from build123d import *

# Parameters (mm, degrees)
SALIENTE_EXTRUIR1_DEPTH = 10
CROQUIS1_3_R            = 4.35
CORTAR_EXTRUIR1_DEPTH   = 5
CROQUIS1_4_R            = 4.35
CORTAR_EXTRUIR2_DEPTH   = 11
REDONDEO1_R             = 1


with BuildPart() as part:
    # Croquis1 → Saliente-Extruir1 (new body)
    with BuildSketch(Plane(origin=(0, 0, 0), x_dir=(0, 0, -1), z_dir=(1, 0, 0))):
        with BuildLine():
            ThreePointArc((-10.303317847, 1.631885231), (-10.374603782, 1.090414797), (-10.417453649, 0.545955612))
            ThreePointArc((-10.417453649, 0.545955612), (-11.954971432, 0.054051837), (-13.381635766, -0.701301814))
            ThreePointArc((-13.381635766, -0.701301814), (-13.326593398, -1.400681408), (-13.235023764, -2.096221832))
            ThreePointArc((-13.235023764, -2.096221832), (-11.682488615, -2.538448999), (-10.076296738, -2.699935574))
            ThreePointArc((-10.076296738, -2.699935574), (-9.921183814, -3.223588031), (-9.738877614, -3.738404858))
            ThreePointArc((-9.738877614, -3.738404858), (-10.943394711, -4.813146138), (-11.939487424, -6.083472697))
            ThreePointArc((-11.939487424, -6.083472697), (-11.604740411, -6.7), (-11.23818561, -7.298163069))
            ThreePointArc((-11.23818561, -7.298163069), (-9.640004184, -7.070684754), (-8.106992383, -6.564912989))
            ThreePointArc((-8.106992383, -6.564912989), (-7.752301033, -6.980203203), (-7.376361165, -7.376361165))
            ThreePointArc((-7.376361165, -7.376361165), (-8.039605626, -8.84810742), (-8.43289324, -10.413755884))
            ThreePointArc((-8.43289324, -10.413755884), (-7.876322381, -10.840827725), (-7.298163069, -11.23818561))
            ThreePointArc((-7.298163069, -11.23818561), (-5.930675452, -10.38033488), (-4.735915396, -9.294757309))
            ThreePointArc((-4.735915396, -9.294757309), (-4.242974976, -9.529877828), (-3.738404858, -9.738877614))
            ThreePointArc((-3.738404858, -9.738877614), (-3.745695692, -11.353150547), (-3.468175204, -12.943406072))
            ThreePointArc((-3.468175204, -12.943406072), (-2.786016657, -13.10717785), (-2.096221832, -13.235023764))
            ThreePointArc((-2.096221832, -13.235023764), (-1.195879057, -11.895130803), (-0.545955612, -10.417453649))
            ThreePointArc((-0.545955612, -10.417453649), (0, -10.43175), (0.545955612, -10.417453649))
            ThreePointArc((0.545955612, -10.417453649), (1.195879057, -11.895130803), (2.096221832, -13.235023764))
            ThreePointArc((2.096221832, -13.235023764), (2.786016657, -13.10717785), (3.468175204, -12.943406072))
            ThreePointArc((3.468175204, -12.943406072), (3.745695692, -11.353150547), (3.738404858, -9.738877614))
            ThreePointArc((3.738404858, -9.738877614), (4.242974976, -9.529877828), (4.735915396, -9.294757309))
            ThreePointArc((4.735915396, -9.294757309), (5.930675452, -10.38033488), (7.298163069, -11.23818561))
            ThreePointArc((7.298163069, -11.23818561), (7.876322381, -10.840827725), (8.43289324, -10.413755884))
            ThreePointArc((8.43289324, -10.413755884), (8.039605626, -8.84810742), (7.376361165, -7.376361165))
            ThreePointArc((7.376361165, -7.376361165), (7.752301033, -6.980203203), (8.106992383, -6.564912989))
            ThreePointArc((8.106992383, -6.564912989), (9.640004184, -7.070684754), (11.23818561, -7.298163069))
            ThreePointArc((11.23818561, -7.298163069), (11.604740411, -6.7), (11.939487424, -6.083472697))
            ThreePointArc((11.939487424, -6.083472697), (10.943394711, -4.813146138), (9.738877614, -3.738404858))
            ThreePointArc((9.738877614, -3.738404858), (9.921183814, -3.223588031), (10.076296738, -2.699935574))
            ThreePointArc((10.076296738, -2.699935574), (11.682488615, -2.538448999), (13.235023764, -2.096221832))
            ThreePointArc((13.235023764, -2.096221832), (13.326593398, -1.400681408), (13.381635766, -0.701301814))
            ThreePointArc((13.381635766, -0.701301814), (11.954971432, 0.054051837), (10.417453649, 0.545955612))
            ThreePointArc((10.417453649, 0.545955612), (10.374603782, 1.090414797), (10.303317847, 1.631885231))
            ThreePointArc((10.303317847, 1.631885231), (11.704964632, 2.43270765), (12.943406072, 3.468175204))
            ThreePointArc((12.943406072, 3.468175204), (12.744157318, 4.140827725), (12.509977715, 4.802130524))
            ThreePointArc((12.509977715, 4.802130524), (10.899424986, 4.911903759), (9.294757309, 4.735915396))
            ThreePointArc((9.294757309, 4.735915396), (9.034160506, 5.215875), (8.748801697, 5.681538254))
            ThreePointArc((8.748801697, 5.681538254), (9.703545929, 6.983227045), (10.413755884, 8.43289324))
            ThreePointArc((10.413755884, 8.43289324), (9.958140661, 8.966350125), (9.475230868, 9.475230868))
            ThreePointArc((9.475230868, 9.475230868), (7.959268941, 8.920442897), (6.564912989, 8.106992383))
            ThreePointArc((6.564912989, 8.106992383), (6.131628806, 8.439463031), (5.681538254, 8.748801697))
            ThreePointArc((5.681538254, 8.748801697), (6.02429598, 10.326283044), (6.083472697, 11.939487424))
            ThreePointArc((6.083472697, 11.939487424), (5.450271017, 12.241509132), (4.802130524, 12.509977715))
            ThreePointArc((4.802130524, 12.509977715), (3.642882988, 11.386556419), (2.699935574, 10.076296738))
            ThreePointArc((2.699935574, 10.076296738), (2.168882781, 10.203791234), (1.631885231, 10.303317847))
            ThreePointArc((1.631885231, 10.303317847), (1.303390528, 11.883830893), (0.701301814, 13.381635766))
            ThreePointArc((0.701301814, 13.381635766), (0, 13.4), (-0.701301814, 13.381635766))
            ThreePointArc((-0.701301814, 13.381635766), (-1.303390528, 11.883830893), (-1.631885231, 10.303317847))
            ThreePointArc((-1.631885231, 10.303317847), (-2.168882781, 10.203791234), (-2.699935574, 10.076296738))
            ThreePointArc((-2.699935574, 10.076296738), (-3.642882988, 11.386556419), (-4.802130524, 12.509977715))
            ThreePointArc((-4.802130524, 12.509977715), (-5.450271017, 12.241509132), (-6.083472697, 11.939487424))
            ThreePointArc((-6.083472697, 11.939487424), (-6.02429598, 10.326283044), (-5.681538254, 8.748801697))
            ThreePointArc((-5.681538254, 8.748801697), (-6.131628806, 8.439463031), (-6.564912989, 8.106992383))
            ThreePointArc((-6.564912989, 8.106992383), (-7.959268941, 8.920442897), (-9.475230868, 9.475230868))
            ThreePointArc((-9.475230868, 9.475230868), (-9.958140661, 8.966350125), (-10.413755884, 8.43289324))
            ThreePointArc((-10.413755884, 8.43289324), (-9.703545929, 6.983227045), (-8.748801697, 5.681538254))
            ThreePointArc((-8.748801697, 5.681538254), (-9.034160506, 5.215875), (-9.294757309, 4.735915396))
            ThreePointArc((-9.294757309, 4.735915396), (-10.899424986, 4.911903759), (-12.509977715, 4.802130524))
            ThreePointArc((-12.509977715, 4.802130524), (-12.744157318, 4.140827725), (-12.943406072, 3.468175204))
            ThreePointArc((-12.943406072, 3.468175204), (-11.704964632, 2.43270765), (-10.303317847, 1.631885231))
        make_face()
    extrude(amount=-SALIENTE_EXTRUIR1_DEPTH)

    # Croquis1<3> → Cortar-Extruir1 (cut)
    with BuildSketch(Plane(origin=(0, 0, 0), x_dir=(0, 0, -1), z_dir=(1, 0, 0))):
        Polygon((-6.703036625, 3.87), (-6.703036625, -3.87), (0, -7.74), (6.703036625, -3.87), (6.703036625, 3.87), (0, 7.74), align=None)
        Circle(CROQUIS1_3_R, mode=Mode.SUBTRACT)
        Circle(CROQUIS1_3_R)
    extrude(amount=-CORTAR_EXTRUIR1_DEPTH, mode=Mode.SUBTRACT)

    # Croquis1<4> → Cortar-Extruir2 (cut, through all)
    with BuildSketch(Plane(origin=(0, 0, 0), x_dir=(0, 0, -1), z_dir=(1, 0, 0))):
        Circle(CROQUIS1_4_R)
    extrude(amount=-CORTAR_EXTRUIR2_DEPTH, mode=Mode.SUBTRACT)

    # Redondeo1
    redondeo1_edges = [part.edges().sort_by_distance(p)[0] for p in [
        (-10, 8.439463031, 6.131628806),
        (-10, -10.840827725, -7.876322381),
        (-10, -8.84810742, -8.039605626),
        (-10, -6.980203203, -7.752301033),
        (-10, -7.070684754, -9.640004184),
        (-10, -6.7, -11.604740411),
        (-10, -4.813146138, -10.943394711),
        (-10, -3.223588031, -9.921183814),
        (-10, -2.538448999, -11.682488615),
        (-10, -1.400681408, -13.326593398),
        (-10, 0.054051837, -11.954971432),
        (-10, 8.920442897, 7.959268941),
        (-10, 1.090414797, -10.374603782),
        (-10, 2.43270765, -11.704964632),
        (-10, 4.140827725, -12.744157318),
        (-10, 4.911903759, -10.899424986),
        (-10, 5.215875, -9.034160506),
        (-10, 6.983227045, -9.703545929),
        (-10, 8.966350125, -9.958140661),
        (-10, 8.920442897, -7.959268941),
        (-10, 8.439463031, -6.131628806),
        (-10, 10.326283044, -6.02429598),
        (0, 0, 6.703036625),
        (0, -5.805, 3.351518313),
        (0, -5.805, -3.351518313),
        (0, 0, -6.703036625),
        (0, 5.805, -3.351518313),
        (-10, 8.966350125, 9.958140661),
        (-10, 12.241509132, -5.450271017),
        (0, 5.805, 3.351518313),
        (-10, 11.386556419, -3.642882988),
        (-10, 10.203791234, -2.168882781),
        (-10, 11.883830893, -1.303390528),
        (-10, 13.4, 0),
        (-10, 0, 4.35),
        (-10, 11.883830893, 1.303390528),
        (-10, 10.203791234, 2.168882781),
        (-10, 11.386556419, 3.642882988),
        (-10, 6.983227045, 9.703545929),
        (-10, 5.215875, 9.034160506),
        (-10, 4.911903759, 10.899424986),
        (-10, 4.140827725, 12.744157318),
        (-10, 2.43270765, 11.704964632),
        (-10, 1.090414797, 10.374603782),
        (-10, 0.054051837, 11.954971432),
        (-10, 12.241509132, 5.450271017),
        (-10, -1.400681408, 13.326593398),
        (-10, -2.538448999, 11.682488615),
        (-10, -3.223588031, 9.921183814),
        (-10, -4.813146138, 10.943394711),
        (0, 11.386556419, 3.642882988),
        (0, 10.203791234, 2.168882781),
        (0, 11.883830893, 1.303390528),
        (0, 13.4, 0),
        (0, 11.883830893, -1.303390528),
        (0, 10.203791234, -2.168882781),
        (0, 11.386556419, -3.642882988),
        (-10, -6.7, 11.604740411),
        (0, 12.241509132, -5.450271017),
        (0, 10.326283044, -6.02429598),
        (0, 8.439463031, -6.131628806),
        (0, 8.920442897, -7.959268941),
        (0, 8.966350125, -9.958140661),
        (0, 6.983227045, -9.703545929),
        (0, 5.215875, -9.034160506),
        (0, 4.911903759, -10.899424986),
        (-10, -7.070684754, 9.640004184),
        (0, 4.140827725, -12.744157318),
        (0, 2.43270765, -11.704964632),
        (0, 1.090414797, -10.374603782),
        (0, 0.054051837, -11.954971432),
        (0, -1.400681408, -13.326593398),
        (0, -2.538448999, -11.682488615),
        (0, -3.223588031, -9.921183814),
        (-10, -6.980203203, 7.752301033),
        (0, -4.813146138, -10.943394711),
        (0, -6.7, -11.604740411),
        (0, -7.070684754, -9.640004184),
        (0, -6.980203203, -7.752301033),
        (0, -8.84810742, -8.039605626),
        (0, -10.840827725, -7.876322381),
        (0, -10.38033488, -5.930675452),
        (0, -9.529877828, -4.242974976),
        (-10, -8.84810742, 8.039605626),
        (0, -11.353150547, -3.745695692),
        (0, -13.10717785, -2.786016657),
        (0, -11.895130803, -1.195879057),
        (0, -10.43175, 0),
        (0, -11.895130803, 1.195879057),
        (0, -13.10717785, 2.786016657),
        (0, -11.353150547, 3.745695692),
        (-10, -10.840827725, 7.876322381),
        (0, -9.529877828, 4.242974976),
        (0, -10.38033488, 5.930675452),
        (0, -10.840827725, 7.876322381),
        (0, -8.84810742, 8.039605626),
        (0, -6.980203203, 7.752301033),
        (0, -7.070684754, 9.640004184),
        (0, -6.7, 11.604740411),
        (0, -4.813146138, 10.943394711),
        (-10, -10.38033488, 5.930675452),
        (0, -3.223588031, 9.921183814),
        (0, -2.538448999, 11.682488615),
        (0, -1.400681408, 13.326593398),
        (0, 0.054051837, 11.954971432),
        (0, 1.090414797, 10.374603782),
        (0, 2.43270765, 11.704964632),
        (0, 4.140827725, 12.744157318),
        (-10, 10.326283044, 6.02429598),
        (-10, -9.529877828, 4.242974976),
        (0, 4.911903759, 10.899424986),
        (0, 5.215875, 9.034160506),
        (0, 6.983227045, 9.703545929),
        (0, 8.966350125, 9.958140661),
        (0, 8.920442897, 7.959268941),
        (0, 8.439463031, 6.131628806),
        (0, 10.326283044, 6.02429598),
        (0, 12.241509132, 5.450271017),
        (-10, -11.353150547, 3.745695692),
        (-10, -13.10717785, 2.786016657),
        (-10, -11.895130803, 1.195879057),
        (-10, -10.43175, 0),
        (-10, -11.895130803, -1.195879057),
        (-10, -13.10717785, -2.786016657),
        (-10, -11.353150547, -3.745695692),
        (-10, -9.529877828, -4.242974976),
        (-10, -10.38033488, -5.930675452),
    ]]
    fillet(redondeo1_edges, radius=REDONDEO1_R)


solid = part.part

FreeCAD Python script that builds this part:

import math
import FreeCAD as App
import Part
import Sketcher

V = App.Vector
Q = App.Units.Quantity


def edges_at(feature, points):
    """Names of the edges that pass closest to the given points."""
    edges = feature.Shape.Edges
    near = lambda p: min(range(len(edges)), key=lambda i: edges[i].distToShape(Part.Vertex(*p))[0])
    return sorted({f"Edge{near(p) + 1}" for p in points})


def add_polygon(sketch, points):
    """Adds a closed chain of lines whose ends are joined by coincident constraints."""
    first, n = sketch.GeometryCount, len(points)
    for a, b in zip(points, points[1:] + points[:1]):
        sketch.addGeometry(Part.LineSegment(App.Vector(*a, 0), App.Vector(*b, 0)), False)
    for i in range(n):
        sketch.addConstraint(Sketcher.Constraint("Coincident", first + i, 2, first + (i + 1) % n, 1))

doc = App.newDocument("Part")
body = doc.addObject("PartDesign::Body", "Body")

# Sketch on YZ plane
sketch1 = doc.addObject("Sketcher::SketchObject", "Sketch")
body.addObject(sketch1)
sketch1.AttachmentSupport = (doc.YZ_Plane, [""])
sketch1.MapMode = "FlatFace"
sketch1.addGeometry(Part.ArcOfCircle(Part.Circle(V(0, 0, 0), V(0, 0, 1), 10.43175), math.radians(81), math.radians(87)), False)
sketch1.addGeometry(Part.ArcOfCircle(Part.Circle(V(-8.349616, 8.418907, 0), V(0, 0, 1), 9.117313), math.radians(12.662251), math.radians(32.978153)), False)
sketch1.addGeometry(Part.ArcOfCircle(Part.Circle(V(0, 0, 0), V(0, 0, 1), 13.4), math.radians(93), math.radians(99)), False)
sketch1.addGeometry(Part.ArcOfCircle(Part.Circle(V(6.416768, 9.970917, 0), V(0, 0, 1), 9.117313), math.radians(159.021847), math.radians(179.337749)), False)
sketch1.addGeometry(Part.ArcOfCircle(Part.Circle(V(0, 0, 0), V(0, 0, 1), 10.43175), math.radians(105), math.radians(111)), False)
sketch1.addGeometry(Part.ArcOfCircle(Part.Circle(V(-11.052032, 4.29496, 0), V(0, 0, 1), 9.117313), math.radians(36.662251), math.radians(56.978153)), False)
sketch1.addGeometry(Part.ArcOfCircle(Part.Circle(V(0, 0, 0), V(0, 0, 1), 13.4), math.radians(117), math.radians(123)), False)
sketch1.addGeometry(Part.ArcOfCircle(Part.Circle(V(1.806472, 11.718821, 0), V(0, 0, 1), 9.117313), math.radians(-176.978153), math.radians(-156.662251)), False)
sketch1.addGeometry(Part.ArcOfCircle(Part.Circle(V(0, 0, 0), V(0, 0, 1), 10.43175), math.radians(129), math.radians(135)), False)
sketch1.addGeometry(Part.ArcOfCircle(Part.Circle(V(-11.843451, -0.571626, 0), V(0, 0, 1), 9.117313), math.radians(60.662251), math.radians(80.978153)), False)
sketch1.addGeometry(Part.ArcOfCircle(Part.Circle(V(0, 0, 0), V(0, 0, 1), 13.4), math.radians(141), math.radians(147)), False)
sketch1.addGeometry(Part.ArcOfCircle(Part.Circle(V(-3.116179, 11.440434, 0), V(0, 0, 1), 9.117313), math.radians(-152.978153), math.radians(-132.662251)), False)
sketch1.addGeometry(Part.ArcOfCircle(Part.Circle(V(0, 0, 0), V(0, 0, 1), 10.43175), math.radians(153), math.radians(159)), False)
sketch1.addGeometry(Part.ArcOfCircle(Part.Circle(V(-10.58703, -5.339372, 0), V(0, 0, 1), 9.117313), math.radians(84.662251), math.radians(104.978153)), False)
sketch1.addGeometry(Part.ArcOfCircle(Part.Circle(V(0, 0, 0), V(0, 0, 1), 13.4), math.radians(165), math.radians(171)), False)
sketch1.addGeometry(Part.ArcOfCircle(Part.Circle(V(-7.500015, 9.183892, 0), V(0, 0, 1), 9.117313), math.radians(-128.978153), math.radians(-108.662251)), False)
sketch1.addGeometry(Part.ArcOfCircle(Part.Circle(V(0, 0, 0), V(0, 0, 1), 10.43175), math.radians(177), math.radians(183)), False)
sketch1.addGeometry(Part.ArcOfCircle(Part.Circle(V(-7.500015, -9.183892, 0), V(0, 0, 1), 9.117313), math.radians(108.662251), math.radians(128.978153)), False)
sketch1.addGeometry(Part.ArcOfCircle(Part.Circle(V(0, 0, 0), V(0, 0, 1), 13.4), math.radians(-171), math.radians(-165)), False)
sketch1.addGeometry(Part.ArcOfCircle(Part.Circle(V(-10.58703, 5.339372, 0), V(0, 0, 1), 9.117313), math.radians(-104.978153), math.radians(-84.662251)), False)
sketch1.addGeometry(Part.ArcOfCircle(Part.Circle(V(0, 0, 0), V(0, 0, 1), 10.43175), math.radians(-159), math.radians(-153)), False)
sketch1.addGeometry(Part.ArcOfCircle(Part.Circle(V(-3.116179, -11.440434, 0), V(0, 0, 1), 9.117313), math.radians(132.662251), math.radians(152.978153)), False)
sketch1.addGeometry(Part.ArcOfCircle(Part.Circle(V(0, 0, 0), V(0, 0, 1), 13.4), math.radians(-147), math.radians(-141)), False)
sketch1.addGeometry(Part.ArcOfCircle(Part.Circle(V(-11.843451, 0.571626, 0), V(0, 0, 1), 9.117313), math.radians(-80.978153), math.radians(-60.662251)), False)
sketch1.addGeometry(Part.ArcOfCircle(Part.Circle(V(0, 0, 0), V(0, 0, 1), 10.43175), math.radians(-135), math.radians(-129)), False)
sketch1.addGeometry(Part.ArcOfCircle(Part.Circle(V(1.806472, -11.718821, 0), V(0, 0, 1), 9.117313), math.radians(156.662251), math.radians(176.978153)), False)
sketch1.addGeometry(Part.ArcOfCircle(Part.Circle(V(0, 0, 0), V(0, 0, 1), 13.4), math.radians(-123), math.radians(-117)), False)
sketch1.addGeometry(Part.ArcOfCircle(Part.Circle(V(-11.052032, -4.29496, 0), V(0, 0, 1), 9.117313), math.radians(-56.978153), math.radians(-36.662251)), False)
sketch1.addGeometry(Part.ArcOfCircle(Part.Circle(V(0, 0, 0), V(0, 0, 1), 10.43175), math.radians(-111), math.radians(-105)), False)
sketch1.addGeometry(Part.ArcOfCircle(Part.Circle(V(6.416768, -9.970917, 0), V(0, 0, 1), 9.117313), math.radians(-179.337749), math.radians(-159.021847)), False)
sketch1.addGeometry(Part.ArcOfCircle(Part.Circle(V(0, 0, 0), V(0, 0, 1), 13.4), math.radians(-99), math.radians(-93)), False)
sketch1.addGeometry(Part.ArcOfCircle(Part.Circle(V(-8.349616, -8.418907, 0), V(0, 0, 1), 9.117313), math.radians(-32.978153), math.radians(-12.662251)), False)
sketch1.addGeometry(Part.ArcOfCircle(Part.Circle(V(0, 0, 0), V(0, 0, 1), 10.43175), math.radians(-87), math.radians(-81)), False)
sketch1.addGeometry(Part.ArcOfCircle(Part.Circle(V(9.917547, -6.498951, 0), V(0, 0, 1), 9.117313), math.radians(-155.337749), math.radians(-135.021847)), False)
sketch1.addGeometry(Part.ArcOfCircle(Part.Circle(V(0, 0, 0), V(0, 0, 1), 13.4), math.radians(-75), math.radians(-69)), False)
sketch1.addGeometry(Part.ArcOfCircle(Part.Circle(V(-4.203476, -11.08715, 0), V(0, 0, 1), 9.117313), math.radians(-8.978153), math.radians(11.337749)), False)
sketch1.addGeometry(Part.ArcOfCircle(Part.Circle(V(0, 0, 0), V(0, 0, 1), 10.43175), math.radians(-63), math.radians(-57)), False)
sketch1.addGeometry(Part.ArcOfCircle(Part.Circle(V(11.703491, -1.903258, 0), V(0, 0, 1), 9.117313), math.radians(-131.337749), math.radians(-111.021847)), False)
sketch1.addGeometry(Part.ArcOfCircle(Part.Circle(V(0, 0, 0), V(0, 0, 1), 13.4), math.radians(-51), math.radians(-45)), False)
sketch1.addGeometry(Part.ArcOfCircle(Part.Circle(V(0.669484, -11.838323, 0), V(0, 0, 1), 9.117313), math.radians(15.021847), math.radians(35.337749)), False)
sketch1.addGeometry(Part.ArcOfCircle(Part.Circle(V(0, 0, 0), V(0, 0, 1), 10.43175), math.radians(-39), math.radians(-33)), False)
sketch1.addGeometry(Part.ArcOfCircle(Part.Circle(V(11.465796, 3.021526, 0), V(0, 0, 1), 9.117313), math.radians(-107.337749), math.radians(-87.021847)), False)
sketch1.addGeometry(Part.ArcOfCircle(Part.Circle(V(0, 0, 0), V(0, 0, 1), 13.4), math.radians(-27), math.radians(-21)), False)
sketch1.addGeometry(Part.ArcOfCircle(Part.Circle(V(5.426683, -10.542543, 0), V(0, 0, 1), 9.117313), math.radians(39.021847), math.radians(59.337749)), False)
sketch1.addGeometry(Part.ArcOfCircle(Part.Circle(V(0, 0, 0), V(0, 0, 1), 10.43175), math.radians(-15), math.radians(-9)), False)
sketch1.addGeometry(Part.ArcOfCircle(Part.Circle(V(9.24556, 7.423861, 0), V(0, 0, 1), 9.117313), math.radians(-83.337749), math.radians(-63.021847)), False)
sketch1.addGeometry(Part.ArcOfCircle(Part.Circle(V(0, 0, 0), V(0, 0, 1), 13.4), math.radians(-3), math.radians(3)), False)
sketch1.addGeometry(Part.ArcOfCircle(Part.Circle(V(9.24556, -7.423861, 0), V(0, 0, 1), 9.117313), math.radians(63.021847), math.radians(83.337749)), False)
sketch1.addGeometry(Part.ArcOfCircle(Part.Circle(V(0, 0, 0), V(0, 0, 1), 10.43175), math.radians(9), math.radians(15)), False)
sketch1.addGeometry(Part.ArcOfCircle(Part.Circle(V(5.426683, 10.542543, 0), V(0, 0, 1), 9.117313), math.radians(-59.337749), math.radians(-39.021847)), False)
sketch1.addGeometry(Part.ArcOfCircle(Part.Circle(V(0, 0, 0), V(0, 0, 1), 13.4), math.radians(21), math.radians(27)), False)
sketch1.addGeometry(Part.ArcOfCircle(Part.Circle(V(11.465796, -3.021526, 0), V(0, 0, 1), 9.117313), math.radians(87.021847), math.radians(107.337749)), False)
sketch1.addGeometry(Part.ArcOfCircle(Part.Circle(V(0, 0, 0), V(0, 0, 1), 10.43175), math.radians(33), math.radians(39)), False)
sketch1.addGeometry(Part.ArcOfCircle(Part.Circle(V(0.669484, 11.838323, 0), V(0, 0, 1), 9.117313), math.radians(-35.337749), math.radians(-15.021847)), False)
sketch1.addGeometry(Part.ArcOfCircle(Part.Circle(V(0, 0, 0), V(0, 0, 1), 13.4), math.radians(45), math.radians(51)), False)
sketch1.addGeometry(Part.ArcOfCircle(Part.Circle(V(11.703491, 1.903258, 0), V(0, 0, 1), 9.117313), math.radians(111.021847), math.radians(131.337749)), False)
sketch1.addGeometry(Part.ArcOfCircle(Part.Circle(V(0, 0, 0), V(0, 0, 1), 10.43175), math.radians(57), math.radians(63)), False)
sketch1.addGeometry(Part.ArcOfCircle(Part.Circle(V(-4.203476, 11.08715, 0), V(0, 0, 1), 9.117313), math.radians(-11.337749), math.radians(8.978153)), False)
sketch1.addGeometry(Part.ArcOfCircle(Part.Circle(V(0, 0, 0), V(0, 0, 1), 13.4), math.radians(69), math.radians(75)), False)
sketch1.addGeometry(Part.ArcOfCircle(Part.Circle(V(9.917547, 6.498951, 0), V(0, 0, 1), 9.117313), math.radians(135.021847), math.radians(155.337749)), False)
sketch1.addConstraint(Sketcher.Constraint("Coincident", 0, 2, 1, 1))
sketch1.addConstraint(Sketcher.Constraint("Coincident", 1, 2, 2, 1))
sketch1.addConstraint(Sketcher.Constraint("Coincident", 2, 2, 3, 1))
sketch1.addConstraint(Sketcher.Constraint("Coincident", 3, 2, 4, 1))
sketch1.addConstraint(Sketcher.Constraint("Coincident", 4, 2, 5, 1))
sketch1.addConstraint(Sketcher.Constraint("Coincident", 5, 2, 6, 1))
sketch1.addConstraint(Sketcher.Constraint("Coincident", 6, 2, 7, 1))
sketch1.addConstraint(Sketcher.Constraint("Coincident", 7, 2, 8, 1))
sketch1.addConstraint(Sketcher.Constraint("Coincident", 8, 2, 9, 1))
sketch1.addConstraint(Sketcher.Constraint("Coincident", 9, 2, 10, 1))
sketch1.addConstraint(Sketcher.Constraint("Coincident", 10, 2, 11, 1))
sketch1.addConstraint(Sketcher.Constraint("Coincident", 11, 2, 12, 1))
sketch1.addConstraint(Sketcher.Constraint("Coincident", 12, 2, 13, 1))
sketch1.addConstraint(Sketcher.Constraint("Coincident", 13, 2, 14, 1))
sketch1.addConstraint(Sketcher.Constraint("Coincident", 14, 2, 15, 1))
sketch1.addConstraint(Sketcher.Constraint("Coincident", 15, 2, 16, 1))
sketch1.addConstraint(Sketcher.Constraint("Coincident", 16, 2, 17, 1))
sketch1.addConstraint(Sketcher.Constraint("Coincident", 17, 2, 18, 1))
sketch1.addConstraint(Sketcher.Constraint("Coincident", 18, 2, 19, 1))
sketch1.addConstraint(Sketcher.Constraint("Coincident", 19, 2, 20, 1))
sketch1.addConstraint(Sketcher.Constraint("Coincident", 20, 2, 21, 1))
sketch1.addConstraint(Sketcher.Constraint("Coincident", 21, 2, 22, 1))
sketch1.addConstraint(Sketcher.Constraint("Coincident", 22, 2, 23, 1))
sketch1.addConstraint(Sketcher.Constraint("Coincident", 23, 2, 24, 1))
sketch1.addConstraint(Sketcher.Constraint("Coincident", 24, 2, 25, 1))
sketch1.addConstraint(Sketcher.Constraint("Coincident", 25, 2, 26, 1))
sketch1.addConstraint(Sketcher.Constraint("Coincident", 26, 2, 27, 1))
sketch1.addConstraint(Sketcher.Constraint("Coincident", 27, 2, 28, 1))
sketch1.addConstraint(Sketcher.Constraint("Coincident", 28, 2, 29, 1))
sketch1.addConstraint(Sketcher.Constraint("Coincident", 29, 2, 30, 1))
sketch1.addConstraint(Sketcher.Constraint("Coincident", 30, 2, 31, 1))
sketch1.addConstraint(Sketcher.Constraint("Coincident", 31, 2, 32, 1))
sketch1.addConstraint(Sketcher.Constraint("Coincident", 32, 2, 33, 1))
sketch1.addConstraint(Sketcher.Constraint("Coincident", 33, 2, 34, 1))
sketch1.addConstraint(Sketcher.Constraint("Coincident", 34, 2, 35, 1))
sketch1.addConstraint(Sketcher.Constraint("Coincident", 35, 2, 36, 1))
sketch1.addConstraint(Sketcher.Constraint("Coincident", 36, 2, 37, 1))
sketch1.addConstraint(Sketcher.Constraint("Coincident", 37, 2, 38, 1))
sketch1.addConstraint(Sketcher.Constraint("Coincident", 38, 2, 39, 1))
sketch1.addConstraint(Sketcher.Constraint("Coincident", 39, 2, 40, 1))
sketch1.addConstraint(Sketcher.Constraint("Coincident", 40, 2, 41, 1))
sketch1.addConstraint(Sketcher.Constraint("Coincident", 41, 2, 42, 1))
sketch1.addConstraint(Sketcher.Constraint("Coincident", 42, 2, 43, 1))
sketch1.addConstraint(Sketcher.Constraint("Coincident", 43, 2, 44, 1))
sketch1.addConstraint(Sketcher.Constraint("Coincident", 44, 2, 45, 1))
sketch1.addConstraint(Sketcher.Constraint("Coincident", 45, 2, 46, 1))
sketch1.addConstraint(Sketcher.Constraint("Coincident", 46, 2, 47, 1))
sketch1.addConstraint(Sketcher.Constraint("Coincident", 47, 2, 48, 1))
sketch1.addConstraint(Sketcher.Constraint("Coincident", 48, 2, 49, 1))
sketch1.addConstraint(Sketcher.Constraint("Coincident", 49, 2, 50, 1))
sketch1.addConstraint(Sketcher.Constraint("Coincident", 50, 2, 51, 1))
sketch1.addConstraint(Sketcher.Constraint("Coincident", 51, 2, 52, 1))
sketch1.addConstraint(Sketcher.Constraint("Coincident", 52, 2, 53, 1))
sketch1.addConstraint(Sketcher.Constraint("Coincident", 53, 2, 54, 1))
sketch1.addConstraint(Sketcher.Constraint("Coincident", 54, 2, 55, 1))
sketch1.addConstraint(Sketcher.Constraint("Coincident", 55, 2, 56, 1))
sketch1.addConstraint(Sketcher.Constraint("Coincident", 56, 2, 57, 1))
sketch1.addConstraint(Sketcher.Constraint("Coincident", 57, 2, 58, 1))
sketch1.addConstraint(Sketcher.Constraint("Coincident", 58, 2, 59, 1))
sketch1.addConstraint(Sketcher.Constraint("Coincident", 59, 2, 0, 1))
sketch1.addConstraint(Sketcher.Constraint("Coincident", 0, 3, -1, 1))
sketch1.addConstraint(Sketcher.Constraint("Coincident", 2, 3, -1, 1))
sketch1.addConstraint(Sketcher.Constraint("Coincident", 4, 3, -1, 1))
sketch1.addConstraint(Sketcher.Constraint("Coincident", 6, 3, -1, 1))
sketch1.addConstraint(Sketcher.Constraint("Coincident", 8, 3, -1, 1))
sketch1.addConstraint(Sketcher.Constraint("Coincident", 10, 3, -1, 1))
sketch1.addConstraint(Sketcher.Constraint("Coincident", 12, 3, -1, 1))
sketch1.addConstraint(Sketcher.Constraint("Coincident", 14, 3, -1, 1))
sketch1.addConstraint(Sketcher.Constraint("Coincident", 16, 3, -1, 1))
sketch1.addConstraint(Sketcher.Constraint("Coincident", 18, 3, -1, 1))
sketch1.addConstraint(Sketcher.Constraint("Coincident", 20, 3, -1, 1))
sketch1.addConstraint(Sketcher.Constraint("Coincident", 22, 3, -1, 1))
sketch1.addConstraint(Sketcher.Constraint("Coincident", 24, 3, -1, 1))
sketch1.addConstraint(Sketcher.Constraint("Coincident", 26, 3, -1, 1))
sketch1.addConstraint(Sketcher.Constraint("Coincident", 28, 3, -1, 1))
sketch1.addConstraint(Sketcher.Constraint("Coincident", 30, 3, -1, 1))
sketch1.addConstraint(Sketcher.Constraint("Coincident", 32, 3, -1, 1))
sketch1.addConstraint(Sketcher.Constraint("Coincident", 34, 3, -1, 1))
sketch1.addConstraint(Sketcher.Constraint("Coincident", 36, 3, -1, 1))
sketch1.addConstraint(Sketcher.Constraint("Coincident", 38, 3, -1, 1))
sketch1.addConstraint(Sketcher.Constraint("Coincident", 40, 3, -1, 1))
sketch1.addConstraint(Sketcher.Constraint("Coincident", 42, 3, -1, 1))
sketch1.addConstraint(Sketcher.Constraint("Coincident", 44, 3, -1, 1))
sketch1.addConstraint(Sketcher.Constraint("Coincident", 46, 3, -1, 1))
sketch1.addConstraint(Sketcher.Constraint("Coincident", 48, 3, -1, 1))
sketch1.addConstraint(Sketcher.Constraint("Coincident", 50, 3, -1, 1))
sketch1.addConstraint(Sketcher.Constraint("Coincident", 52, 3, -1, 1))
sketch1.addConstraint(Sketcher.Constraint("Coincident", 54, 3, -1, 1))
sketch1.addConstraint(Sketcher.Constraint("Coincident", 56, 3, -1, 1))
sketch1.addConstraint(Sketcher.Constraint("Coincident", 58, 3, -1, 1))
sketch1.addConstraint(Sketcher.Constraint("Equal", 1, 3))
sketch1.addConstraint(Sketcher.Constraint("Equal", 0, 4))
sketch1.addConstraint(Sketcher.Constraint("Equal", 3, 5))
sketch1.addConstraint(Sketcher.Constraint("Equal", 2, 6))
sketch1.addConstraint(Sketcher.Constraint("Equal", 5, 7))
sketch1.addConstraint(Sketcher.Constraint("Equal", 4, 8))
sketch1.addConstraint(Sketcher.Constraint("Equal", 7, 9))
sketch1.addConstraint(Sketcher.Constraint("Equal", 6, 10))
sketch1.addConstraint(Sketcher.Constraint("Equal", 9, 11))
sketch1.addConstraint(Sketcher.Constraint("Equal", 8, 12))
sketch1.addConstraint(Sketcher.Constraint("Equal", 11, 13))
sketch1.addConstraint(Sketcher.Constraint("Equal", 10, 14))
sketch1.addConstraint(Sketcher.Constraint("Equal", 13, 15))
sketch1.addConstraint(Sketcher.Constraint("Equal", 12, 16))
sketch1.addConstraint(Sketcher.Constraint("Equal", 15, 17))
sketch1.addConstraint(Sketcher.Constraint("Equal", 14, 18))
sketch1.addConstraint(Sketcher.Constraint("Equal", 17, 19))
sketch1.addConstraint(Sketcher.Constraint("Equal", 16, 20))
sketch1.addConstraint(Sketcher.Constraint("Equal", 19, 21))
sketch1.addConstraint(Sketcher.Constraint("Equal", 18, 22))
sketch1.addConstraint(Sketcher.Constraint("Equal", 21, 23))
sketch1.addConstraint(Sketcher.Constraint("Equal", 20, 24))
sketch1.addConstraint(Sketcher.Constraint("Equal", 23, 25))
sketch1.addConstraint(Sketcher.Constraint("Equal", 22, 26))
sketch1.addConstraint(Sketcher.Constraint("Equal", 25, 27))
sketch1.addConstraint(Sketcher.Constraint("Equal", 24, 28))
sketch1.addConstraint(Sketcher.Constraint("Equal", 27, 29))
sketch1.addConstraint(Sketcher.Constraint("Equal", 26, 30))
sketch1.addConstraint(Sketcher.Constraint("Equal", 29, 31))
sketch1.addConstraint(Sketcher.Constraint("Equal", 28, 32))
sketch1.addConstraint(Sketcher.Constraint("Equal", 31, 33))
sketch1.addConstraint(Sketcher.Constraint("Equal", 30, 34))
sketch1.addConstraint(Sketcher.Constraint("Equal", 33, 35))
sketch1.addConstraint(Sketcher.Constraint("Equal", 32, 36))
sketch1.addConstraint(Sketcher.Constraint("Equal", 35, 37))
sketch1.addConstraint(Sketcher.Constraint("Equal", 34, 38))
sketch1.addConstraint(Sketcher.Constraint("Equal", 37, 39))
sketch1.addConstraint(Sketcher.Constraint("Equal", 36, 40))
sketch1.addConstraint(Sketcher.Constraint("Equal", 39, 41))
sketch1.addConstraint(Sketcher.Constraint("Equal", 38, 42))
sketch1.addConstraint(Sketcher.Constraint("Equal", 41, 43))
sketch1.addConstraint(Sketcher.Constraint("Equal", 40, 44))
sketch1.addConstraint(Sketcher.Constraint("Equal", 43, 45))
sketch1.addConstraint(Sketcher.Constraint("Equal", 42, 46))
sketch1.addConstraint(Sketcher.Constraint("Equal", 45, 47))
sketch1.addConstraint(Sketcher.Constraint("Equal", 44, 48))
sketch1.addConstraint(Sketcher.Constraint("Equal", 47, 49))
sketch1.addConstraint(Sketcher.Constraint("Equal", 46, 50))
sketch1.addConstraint(Sketcher.Constraint("Equal", 49, 51))
sketch1.addConstraint(Sketcher.Constraint("Equal", 48, 52))
sketch1.addConstraint(Sketcher.Constraint("Equal", 51, 53))
sketch1.addConstraint(Sketcher.Constraint("Equal", 50, 54))
sketch1.addConstraint(Sketcher.Constraint("Equal", 53, 55))
sketch1.addConstraint(Sketcher.Constraint("Equal", 52, 56))
sketch1.addConstraint(Sketcher.Constraint("Equal", 55, 57))
sketch1.addConstraint(Sketcher.Constraint("Equal", 54, 58))
sketch1.addConstraint(Sketcher.Constraint("Equal", 57, 59))
sketch1.addConstraint(Sketcher.Constraint("Symmetric", 15, 3, 17, 3, -1))
sketch1.addConstraint(Sketcher.Constraint("Symmetric", 13, 3, 19, 3, -1))
sketch1.addConstraint(Sketcher.Constraint("Symmetric", 11, 3, 21, 3, -1))
sketch1.addConstraint(Sketcher.Constraint("Symmetric", 9, 3, 23, 3, -1))
sketch1.addConstraint(Sketcher.Constraint("Symmetric", 7, 3, 25, 3, -1))
sketch1.addConstraint(Sketcher.Constraint("Symmetric", 5, 3, 27, 3, -1))
sketch1.addConstraint(Sketcher.Constraint("Symmetric", 3, 3, 29, 3, -1))
sketch1.addConstraint(Sketcher.Constraint("Symmetric", 1, 3, 31, 3, -1))
sketch1.addConstraint(Sketcher.Constraint("Symmetric", 45, 3, 47, 3, -1))
sketch1.addConstraint(Sketcher.Constraint("Symmetric", 43, 3, 49, 3, -1))
sketch1.addConstraint(Sketcher.Constraint("Symmetric", 41, 3, 51, 3, -1))
sketch1.addConstraint(Sketcher.Constraint("Symmetric", 39, 3, 53, 3, -1))
sketch1.addConstraint(Sketcher.Constraint("Symmetric", 37, 3, 55, 3, -1))
sketch1.addConstraint(Sketcher.Constraint("Symmetric", 35, 3, 57, 3, -1))
sketch1.addConstraint(Sketcher.Constraint("Symmetric", 33, 3, 59, 3, -1))
sketch1.addConstraint(Sketcher.Constraint("Radius", 2, 13.4))
sketch1.addConstraint(Sketcher.Constraint("Radius", 0, 10.43175))
sketch1.addConstraint(Sketcher.Constraint("Radius", 1, 9.117313))
sketch1.addConstraint(Sketcher.Constraint("DistanceX", 1, 2, -1, 1, 0.701302))
sketch1.addConstraint(Sketcher.Constraint("DistanceY", 36, 2, -1, 1, 8.748802))
sketch1.addConstraint(Sketcher.Constraint("DistanceX", -1, 1, 40, 2, 8.748802))
sketch1.addConstraint(Sketcher.Constraint("DistanceY", 45, 2, -1, 1, 0.701302))
sketch1.addConstraint(Sketcher.Constraint("DistanceX", -1, 1, 3, 3, 6.416768))
sketch1.addConstraint(Sketcher.Constraint("DistanceY", -1, 1, 5, 3, 4.29496))
sketch1.addConstraint(Sketcher.Constraint("DistanceX", -1, 1, 7, 3, 1.806472))
sketch1.addConstraint(Sketcher.Constraint("DistanceY", -1, 1, 7, 3, 11.718821))
sketch1.addConstraint(Sketcher.Constraint("DistanceX", 9, 3, -1, 1, 11.843451))
sketch1.addConstraint(Sketcher.Constraint("DistanceX", 11, 3, -1, 1, 3.116179))
sketch1.addConstraint(Sketcher.Constraint("DistanceX", 13, 3, -1, 1, 10.58703))
sketch1.addConstraint(Sketcher.Constraint("DistanceY", 13, 3, -1, 1, 5.339372))
sketch1.addConstraint(Sketcher.Constraint("DistanceY", -1, 1, 15, 3, 9.183892))
sketch1.addConstraint(Sketcher.Constraint("DistanceY", 33, 3, -1, 1, 6.498951))
sketch1.addConstraint(Sketcher.Constraint("DistanceY", 35, 3, -1, 1, 11.08715))
sketch1.addConstraint(Sketcher.Constraint("DistanceX", -1, 1, 37, 3, 11.703491))
sketch1.addConstraint(Sketcher.Constraint("DistanceX", -1, 1, 45, 3, 9.24556))
sketch1.addConstraint(Sketcher.Constraint("DistanceX", 2, 2, -1, 1, 2.096222))
sketch1.addConstraint(Sketcher.Constraint("DistanceX", 8, 2, -1, 1, 7.376361))
sketch1.addConstraint(Sketcher.Constraint("DistanceY", -1, 1, 14, 2, 2.096222))
sketch1.addConstraint(Sketcher.Constraint("DistanceX", -1, 1, 34, 2, 4.802131))
sketch1.addConstraint(Sketcher.Constraint("DistanceX", -1, 1, 38, 2, 9.475231))
sketch1.addConstraint(Sketcher.Constraint("DistanceY", 42, 2, -1, 1, 4.802131))
sketch1.addConstraint(Sketcher.Constraint("DistanceX", 1, 3, -1, 1, 8.349616))
sketch1.addConstraint(Sketcher.Constraint("DistanceX", 5, 3, -1, 1, 11.052032))
sketch1.addConstraint(Sketcher.Constraint("DistanceY", -1, 1, 11, 3, 11.440434))
sketch1.addConstraint(Sketcher.Constraint("DistanceX", -1, 1, 33, 3, 9.917547))
sketch1.addConstraint(Sketcher.Constraint("DistanceX", -1, 1, 39, 3, 0.669484))
sketch1.addConstraint(Sketcher.Constraint("DistanceX", -1, 1, 41, 3, 11.465796))
sketch1.addConstraint(Sketcher.Constraint("DistanceX", -1, 1, 43, 3, 5.426683))
pad1 = doc.addObject("PartDesign::Pad", "Pad")
body.addObject(pad1)
pad1.Profile = sketch1
pad1.Length = 10
pad1.Reversed = True

# Sketch on YZ plane
sketch2 = doc.addObject("Sketcher::SketchObject", "Sketch001")
body.addObject(sketch2)
sketch2.AttachmentSupport = (doc.YZ_Plane, [""])
sketch2.MapMode = "FlatFace"
add_polygon(sketch2, [(3.87, 6.703037), (-3.87, 6.703037), (-7.74, 0), (-3.87, -6.703037), (3.87, -6.703037), (7.74, 0)])  # lines 0-5
sketch2.addConstraint(Sketcher.Constraint("Horizontal", 0))
sketch2.addConstraint(Sketcher.Constraint("Horizontal", 3))
sketch2.addConstraint(Sketcher.Constraint("Symmetric", 0, 2, 3, 2, -1, 1))
sketch2.addConstraint(Sketcher.Constraint("Symmetric", 1, 2, 4, 2, -1, 1))
sketch2.addConstraint(Sketcher.Constraint("PointOnObject", 1, 2, -1))
sketch2.addConstraint(Sketcher.Constraint("Parallel", 2, 5))
sketch2.addConstraint(Sketcher.Constraint("Vertical", 0, 2, 2, 2))
sketch2.addConstraint(Sketcher.Constraint("Angle", 1, Q("-120 deg")))
sketch2.addConstraint(Sketcher.Constraint("DistanceX", 0, 2, 0, 1, 7.74))
sketch2.addConstraint(Sketcher.Constraint("Distance", 1, 7.74))
pocket1 = doc.addObject("PartDesign::Pocket", "Pocket")
body.addObject(pocket1)
pocket1.Profile = sketch2
pocket1.Length = 5

# Sketch on YZ plane
sketch3 = doc.addObject("Sketcher::SketchObject", "Sketch002")
body.addObject(sketch3)
sketch3.AttachmentSupport = (doc.YZ_Plane, [""])
sketch3.MapMode = "FlatFace"
sketch3.addGeometry(Part.Circle(V(0, 0, 0), V(0, 0, 1), 4.35), False)
sketch3.addConstraint(Sketcher.Constraint("Coincident", 0, 3, -1, 1))
sketch3.addConstraint(Sketcher.Constraint("Diameter", 0, 8.7))
pocket2 = doc.addObject("PartDesign::Pocket", "Pocket001")
body.addObject(pocket2)
pocket2.Profile = sketch3
pocket2.Type = "ThroughAll"
doc.recompute()

fillet = doc.addObject("PartDesign::Fillet", "Fillet")
body.addObject(fillet)
fillet.Base = (pocket2, edges_at(pocket2, [
    (-10, 8.439, 6.132),
    (-10, -10.841, -7.876),
    (-10, -8.848, -8.04),
    (-10, -6.98, -7.752),
    (-10, -7.071, -9.64),
    (-10, -6.7, -11.605),
    (-10, -4.813, -10.943),
    (-10, -3.224, -9.921),
    (-10, -2.538, -11.682),
    (-10, -1.401, -13.327),
    (-10, 0.054, -11.955),
    (-10, 8.92, 7.959),
    (-10, 1.09, -10.375),
    (-10, 2.433, -11.705),
    (-10, 4.141, -12.744),
    (-10, 4.912, -10.899),
    (-10, 5.216, -9.034),
    (-10, 6.983, -9.704),
    (-10, 8.966, -9.958),
    (-10, 8.92, -7.959),
    (-10, 8.439, -6.132),
    (-10, 10.326, -6.024),
    (0, 0, 6.703),
    (0, -5.805, 3.352),
    (0, -5.805, -3.352),
    (0, 0, -6.703),
    (0, 5.805, -3.352),
    (-10, 8.966, 9.958),
    (-10, 12.242, -5.45),
    (0, 5.805, 3.352),
    (-10, 11.387, -3.643),
    (-10, 10.204, -2.169),
    (-10, 11.884, -1.303),
    (-10, 13.4, 0),
    (-10, 0, 4.35),
    (-10, 11.884, 1.303),
    (-10, 10.204, 2.169),
    (-10, 11.387, 3.643),
    (-10, 6.983, 9.704),
    (-10, 5.216, 9.034),
    (-10, 4.912, 10.899),
    (-10, 4.141, 12.744),
    (-10, 2.433, 11.705),
    (-10, 1.09, 10.375),
    (-10, 0.054, 11.955),
    (-10, 12.242, 5.45),
    (-10, -1.401, 13.327),
    (-10, -2.538, 11.682),
    (-10, -3.224, 9.921),
    (-10, -4.813, 10.943),
    (0, 11.387, 3.643),
    (0, 10.204, 2.169),
    (0, 11.884, 1.303),
    (0, 13.4, 0),
    (0, 11.884, -1.303),
    (0, 10.204, -2.169),
    (0, 11.387, -3.643),
    (-10, -6.7, 11.605),
    (0, 12.242, -5.45),
    (0, 10.326, -6.024),
    (0, 8.439, -6.132),
    (0, 8.92, -7.959),
    (0, 8.966, -9.958),
    (0, 6.983, -9.704),
    (0, 5.216, -9.034),
    (0, 4.912, -10.899),
    (-10, -7.071, 9.64),
    (0, 4.141, -12.744),
    (0, 2.433, -11.705),
    (0, 1.09, -10.375),
    (0, 0.054, -11.955),
    (0, -1.401, -13.327),
    (0, -2.538, -11.682),
    (0, -3.224, -9.921),
    (-10, -6.98, 7.752),
    (0, -4.813, -10.943),
    (0, -6.7, -11.605),
    (0, -7.071, -9.64),
    (0, -6.98, -7.752),
    (0, -8.848, -8.04),
    (0, -10.841, -7.876),
    (0, -10.38, -5.931),
    (0, -9.53, -4.243),
    (-10, -8.848, 8.04),
    (0, -11.353, -3.746),
    (0, -13.107, -2.786),
    (0, -11.895, -1.196),
    (0, -10.432, 0),
    (0, -11.895, 1.196),
    (0, -13.107, 2.786),
    (0, -11.353, 3.746),
    (-10, -10.841, 7.876),
    (0, -9.53, 4.243),
    (0, -10.38, 5.931),
    (0, -10.841, 7.876),
    (0, -8.848, 8.04),
    (0, -6.98, 7.752),
    (0, -7.071, 9.64),
    (0, -6.7, 11.605),
    (0, -4.813, 10.943),
    (-10, -10.38, 5.931),
    (0, -3.224, 9.921),
    (0, -2.538, 11.682),
    (0, -1.401, 13.327),
    (0, 0.054, 11.955),
    (0, 1.09, 10.375),
    (0, 2.433, 11.705),
    (0, 4.141, 12.744),
    (-10, 10.326, 6.024),
    (-10, -9.53, 4.243),
    (0, 4.912, 10.899),
    (0, 5.216, 9.034),
    (0, 6.983, 9.704),
    (0, 8.966, 9.958),
    (0, 8.92, 7.959),
    (0, 8.439, 6.132),
    (0, 10.326, 6.024),
    (0, 12.242, 5.45),
    (-10, -11.353, 3.746),
    (-10, -13.107, 2.786),
    (-10, -11.895, 1.196),
    (-10, -10.432, 0),
    (-10, -11.895, -1.196),
    (-10, -13.107, -2.786),
    (-10, -11.353, -3.746),
    (-10, -9.53, -4.243),
    (-10, -10.38, -5.931),
]))
fillet.Radius = 1

doc.recompute()
